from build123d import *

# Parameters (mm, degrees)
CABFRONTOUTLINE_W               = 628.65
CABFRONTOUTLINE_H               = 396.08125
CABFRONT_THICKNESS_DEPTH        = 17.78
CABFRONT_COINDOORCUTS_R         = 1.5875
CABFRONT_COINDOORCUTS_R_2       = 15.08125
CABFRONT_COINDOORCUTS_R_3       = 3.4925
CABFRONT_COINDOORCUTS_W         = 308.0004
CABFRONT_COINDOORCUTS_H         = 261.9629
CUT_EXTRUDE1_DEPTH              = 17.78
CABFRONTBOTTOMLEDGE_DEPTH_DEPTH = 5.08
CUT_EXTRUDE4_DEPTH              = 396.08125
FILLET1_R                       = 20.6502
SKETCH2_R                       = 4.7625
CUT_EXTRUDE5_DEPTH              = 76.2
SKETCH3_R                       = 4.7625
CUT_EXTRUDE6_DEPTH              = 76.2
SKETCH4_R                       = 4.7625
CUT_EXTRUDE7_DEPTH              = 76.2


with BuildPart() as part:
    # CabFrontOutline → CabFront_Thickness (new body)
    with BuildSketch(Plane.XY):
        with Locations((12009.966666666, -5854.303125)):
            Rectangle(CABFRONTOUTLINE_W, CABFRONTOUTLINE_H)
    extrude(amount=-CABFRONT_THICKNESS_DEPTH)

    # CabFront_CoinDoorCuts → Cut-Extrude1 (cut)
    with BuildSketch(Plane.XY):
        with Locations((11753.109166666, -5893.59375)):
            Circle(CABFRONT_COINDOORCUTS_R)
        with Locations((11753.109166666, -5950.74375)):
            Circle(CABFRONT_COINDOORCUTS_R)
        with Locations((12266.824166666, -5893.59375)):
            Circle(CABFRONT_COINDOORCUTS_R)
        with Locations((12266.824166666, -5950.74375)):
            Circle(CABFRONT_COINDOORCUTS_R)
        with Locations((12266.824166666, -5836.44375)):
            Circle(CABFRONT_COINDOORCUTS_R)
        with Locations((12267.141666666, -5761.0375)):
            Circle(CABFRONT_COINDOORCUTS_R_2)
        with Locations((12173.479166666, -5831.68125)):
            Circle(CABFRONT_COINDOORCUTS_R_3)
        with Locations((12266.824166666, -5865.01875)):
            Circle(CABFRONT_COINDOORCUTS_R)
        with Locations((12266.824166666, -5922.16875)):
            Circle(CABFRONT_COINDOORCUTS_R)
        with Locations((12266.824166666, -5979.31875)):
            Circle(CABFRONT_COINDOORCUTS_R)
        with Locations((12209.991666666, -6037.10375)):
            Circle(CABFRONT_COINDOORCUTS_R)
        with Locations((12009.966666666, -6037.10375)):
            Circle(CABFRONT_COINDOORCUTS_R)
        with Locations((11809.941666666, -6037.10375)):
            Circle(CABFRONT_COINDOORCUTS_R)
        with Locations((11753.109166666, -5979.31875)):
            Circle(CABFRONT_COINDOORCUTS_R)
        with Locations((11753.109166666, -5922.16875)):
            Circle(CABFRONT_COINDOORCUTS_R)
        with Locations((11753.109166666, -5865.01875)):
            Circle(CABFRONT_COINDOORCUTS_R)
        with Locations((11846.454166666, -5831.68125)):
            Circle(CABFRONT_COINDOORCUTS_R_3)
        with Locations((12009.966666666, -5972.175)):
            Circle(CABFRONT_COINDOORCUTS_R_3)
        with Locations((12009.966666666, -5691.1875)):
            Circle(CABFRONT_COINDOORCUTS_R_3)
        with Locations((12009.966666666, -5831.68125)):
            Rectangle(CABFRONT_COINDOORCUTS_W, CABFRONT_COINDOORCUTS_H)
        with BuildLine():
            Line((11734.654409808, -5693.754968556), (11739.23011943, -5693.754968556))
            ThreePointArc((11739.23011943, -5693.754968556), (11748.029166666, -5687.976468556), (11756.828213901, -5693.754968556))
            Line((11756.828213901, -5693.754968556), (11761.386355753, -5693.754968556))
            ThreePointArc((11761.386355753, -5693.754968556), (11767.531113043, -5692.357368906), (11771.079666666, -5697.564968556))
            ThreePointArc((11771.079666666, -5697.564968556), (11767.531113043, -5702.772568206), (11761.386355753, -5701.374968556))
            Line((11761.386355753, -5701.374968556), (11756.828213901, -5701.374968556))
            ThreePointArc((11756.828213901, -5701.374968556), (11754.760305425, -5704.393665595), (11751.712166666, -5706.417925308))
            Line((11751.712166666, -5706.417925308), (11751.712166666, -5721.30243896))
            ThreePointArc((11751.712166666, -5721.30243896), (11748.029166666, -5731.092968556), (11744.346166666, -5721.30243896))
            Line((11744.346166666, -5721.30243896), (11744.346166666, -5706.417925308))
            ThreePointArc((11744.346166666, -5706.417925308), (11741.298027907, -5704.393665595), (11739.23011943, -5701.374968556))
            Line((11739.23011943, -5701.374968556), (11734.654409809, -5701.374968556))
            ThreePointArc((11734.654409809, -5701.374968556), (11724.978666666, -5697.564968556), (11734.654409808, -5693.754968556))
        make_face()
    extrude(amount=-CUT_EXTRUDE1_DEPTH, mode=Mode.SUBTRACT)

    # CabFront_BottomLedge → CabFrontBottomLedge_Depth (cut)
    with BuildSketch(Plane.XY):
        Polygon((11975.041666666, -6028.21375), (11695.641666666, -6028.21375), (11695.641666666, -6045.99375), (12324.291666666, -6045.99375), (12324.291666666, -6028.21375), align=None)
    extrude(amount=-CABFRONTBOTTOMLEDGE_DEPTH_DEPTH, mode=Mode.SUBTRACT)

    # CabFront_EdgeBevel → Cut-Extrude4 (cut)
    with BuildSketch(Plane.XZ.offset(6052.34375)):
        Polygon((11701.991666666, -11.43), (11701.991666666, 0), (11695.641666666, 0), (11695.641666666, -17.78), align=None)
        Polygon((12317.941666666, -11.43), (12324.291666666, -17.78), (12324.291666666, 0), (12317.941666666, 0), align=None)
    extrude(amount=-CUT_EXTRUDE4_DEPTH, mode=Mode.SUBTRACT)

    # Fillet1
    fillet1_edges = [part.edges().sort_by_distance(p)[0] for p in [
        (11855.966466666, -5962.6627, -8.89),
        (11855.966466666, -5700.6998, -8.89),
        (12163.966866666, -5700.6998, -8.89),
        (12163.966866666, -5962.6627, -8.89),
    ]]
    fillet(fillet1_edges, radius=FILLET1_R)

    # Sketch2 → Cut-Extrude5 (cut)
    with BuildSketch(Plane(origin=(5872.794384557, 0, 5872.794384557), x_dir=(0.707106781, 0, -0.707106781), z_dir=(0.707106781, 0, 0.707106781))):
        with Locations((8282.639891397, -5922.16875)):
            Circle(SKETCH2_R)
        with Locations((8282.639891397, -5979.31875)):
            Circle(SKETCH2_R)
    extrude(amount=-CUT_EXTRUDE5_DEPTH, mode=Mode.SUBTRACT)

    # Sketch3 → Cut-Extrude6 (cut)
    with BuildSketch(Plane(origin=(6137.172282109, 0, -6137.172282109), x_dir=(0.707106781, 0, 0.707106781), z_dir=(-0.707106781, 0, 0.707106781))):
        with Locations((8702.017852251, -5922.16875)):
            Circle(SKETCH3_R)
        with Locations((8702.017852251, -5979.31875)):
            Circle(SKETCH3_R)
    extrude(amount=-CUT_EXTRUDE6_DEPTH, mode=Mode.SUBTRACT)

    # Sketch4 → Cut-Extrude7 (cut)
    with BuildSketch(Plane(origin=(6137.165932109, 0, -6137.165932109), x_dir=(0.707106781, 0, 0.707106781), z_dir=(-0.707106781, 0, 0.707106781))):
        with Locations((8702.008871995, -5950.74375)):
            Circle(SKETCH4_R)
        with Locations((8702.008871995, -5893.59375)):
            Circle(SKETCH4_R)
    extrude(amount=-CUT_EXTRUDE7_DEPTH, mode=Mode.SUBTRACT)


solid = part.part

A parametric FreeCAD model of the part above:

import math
import FreeCAD as App
import Part
import Sketcher

V = App.Vector
Q = App.Units.Quantity


def edges_at(feature, points):
    """Names of the edges that pass closest to the given points."""
    edges = feature.Shape.Edges
    near = lambda p: min(range(len(edges)), key=lambda i: edges[i].distToShape(Part.Vertex(*p))[0])
    return sorted({f"Edge{near(p) + 1}" for p in points})


def add_polygon(sketch, points):
    """Adds a closed chain of lines whose ends are joined by coincident constraints."""
    first, n = sketch.GeometryCount, len(points)
    for a, b in zip(points, points[1:] + points[:1]):
        sketch.addGeometry(Part.LineSegment(App.Vector(*a, 0), App.Vector(*b, 0)), False)
    for i in range(n):
        sketch.addConstraint(Sketcher.Constraint("Coincident", first + i, 2, first + (i + 1) % n, 1))

doc = App.newDocument("Part")
body = doc.addObject("PartDesign::Body", "Body")

# Sketch on XY plane
sketch1 = body.newObject("Sketcher::SketchObject", "Sketch")
sketch1.AttachmentSupport = (doc.getObject("XY_Plane"), [""])
sketch1.MapMode = "FlatFace"
add_polygon(sketch1, [(11696, -5656), (11696, -6052), (12324, -6052), (12324, -5656)])  # lines 0-3
sketch1.addConstraint(Sketcher.Constraint("Vertical", 0))
sketch1.addConstraint(Sketcher.Constraint("Horizontal", 1))
sketch1.addConstraint(Sketcher.Constraint("Vertical", 2))
sketch1.addConstraint(Sketcher.Constraint("Horizontal", 3))
sketch1.addConstraint(Sketcher.Constraint("DistanceX", 1, 1, 1, 2, Q("24.75 in")))
sketch1.addConstraint(Sketcher.Constraint("DistanceY", 0, 2, 0, 1, Q("15.59375 in")))
sketch1.addConstraint(Sketcher.Constraint("DistanceY", 0, 2, -1, 1, Q("238.28125 in")))
sketch1.addConstraint(Sketcher.Constraint("DistanceX", -1, 1, 0, 2, 11695.641667))
pad1 = body.newObject("PartDesign::Pad", "Pad")
pad1.Profile = sketch1
pad1.Length = Q("0.7 in")
pad1.Reversed = True

# Sketch on XY plane
sketch2 = body.newObject("Sketcher::SketchObject", "Sketch001")
sketch2.AttachmentSupport = (doc.getObject("XY_Plane"), [""])
sketch2.MapMode = "FlatFace"
sketch2.addGeometry(Part.Circle(V(11753.1, -5893.6, 0), V(0, 0, 1), 1.6), False)  # 0
sketch2.addGeometry(Part.Circle(V(11753.1, -5950.7, 0), V(0, 0, 1), 1.6), False)  # 1
sketch2.addGeometry(Part.Circle(V(12266.8, -5893.6, 0), V(0, 0, 1), 1.6), False)  # 2
sketch2.addGeometry(Part.Circle(V(12266.8, -5950.7, 0), V(0, 0, 1), 1.6), False)  # 3
sketch2.addGeometry(Part.Circle(V(12266.8, -5836.4, 0), V(0, 0, 1), 1.6), False)  # 4
sketch2.addGeometry(Part.Circle(V(12267.1, -5761, 0), V(0, 0, 1), 15.1), False)  # 5
sketch2.addGeometry(Part.Circle(V(12173.5, -5831.7, 0), V(0, 0, 1), 3.5), False)  # 6
sketch2.addGeometry(Part.Circle(V(12266.8, -5865, 0), V(0, 0, 1), 1.6), False)  # 7
sketch2.addGeometry(Part.Circle(V(12266.8, -5922.2, 0), V(0, 0, 1), 1.6), False)  # 8
sketch2.addGeometry(Part.Circle(V(12266.8, -5979.3, 0), V(0, 0, 1), 1.6), False)  # 9
sketch2.addGeometry(Part.Circle(V(12210, -6037.1, 0), V(0, 0, 1), 1.6), False)  # 10
sketch2.addGeometry(Part.Circle(V(12010, -6037.1, 0), V(0, 0, 1), 1.6), False)  # 11
sketch2.addGeometry(Part.Circle(V(11809.9, -6037.1, 0), V(0, 0, 1), 1.6), False)  # 12
sketch2.addGeometry(Part.Circle(V(11753.1, -5979.3, 0), V(0, 0, 1), 1.6), False)  # 13
sketch2.addGeometry(Part.Circle(V(11753.1, -5922.2, 0), V(0, 0, 1), 1.6), False)  # 14
sketch2.addGeometry(Part.Circle(V(11753.1, -5865, 0), V(0, 0, 1), 1.6), False)  # 15
sketch2.addGeometry(Part.Circle(V(11846.5, -5831.7, 0), V(0, 0, 1), 3.5), False)  # 16
sketch2.addGeometry(Part.Circle(V(12010, -5972.2, 0), V(0, 0, 1), 3.5), False)  # 17
sketch2.addGeometry(Part.Circle(V(12010, -5691.2, 0), V(0, 0, 1), 3.5), False)  # 18
add_polygon(sketch2, [(11856, -5700.7), (11856, -5962.7), (12164, -5962.7), (12164, -5700.7)])  # lines 19-22
sketch2.addGeometry(Part.LineSegment(V(11739.2, -5693.8, 0), V(11734.7, -5693.8, 0)), False)  # 23
sketch2.addGeometry(Part.ArcOfCircle(Part.Circle(V(11730.6, -5697.6, 0), V(0, 0, 1), 5.6), math.radians(43), math.radians(317)), False)  # 24
sketch2.addGeometry(Part.LineSegment(V(11734.7, -5701.4, 0), V(11739.2, -5701.4, 0)), False)  # 25
sketch2.addGeometry(Part.ArcOfCircle(Part.Circle(V(11748, -5697.6, 0), V(0, 0, 1), 9.6), math.radians(-157), math.radians(-113)), False)  # 26
sketch2.addGeometry(Part.LineSegment(V(11744.3, -5706.4, 0), V(11744.3, -5721.3, 0)), False)  # 27
sketch2.addGeometry(Part.ArcOfCircle(Part.Circle(V(11748, -5725.5, 0), V(0, 0, 1), 5.6), math.radians(131), math.radians(409)), False)  # 28
sketch2.addGeometry(Part.LineSegment(V(11751.7, -5721.3, 0), V(11751.7, -5706.4, 0)), False)  # 29
sketch2.addGeometry(Part.ArcOfCircle(Part.Circle(V(11748, -5697.6, 0), V(0, 0, 1), 9.6), math.radians(-67), math.radians(-23)), False)  # 30
sketch2.addGeometry(Part.LineSegment(V(11756.8, -5701.4, 0), V(11761.4, -5701.4, 0)), False)  # 31
sketch2.addGeometry(Part.ArcOfCircle(Part.Circle(V(11765.5, -5697.6, 0), V(0, 0, 1), 5.6), math.radians(-137), math.radians(0)), False)  # 32
sketch2.addGeometry(Part.ArcOfCircle(Part.Circle(V(11765.5, -5697.6, 0), V(0, 0, 1), 5.6), math.radians(0), math.radians(137)), False)  # 33
sketch2.addGeometry(Part.LineSegment(V(11761.4, -5693.8, 0), V(11756.8, -5693.8, 0)), False)  # 34
sketch2.addGeometry(Part.ArcOfCircle(Part.Circle(V(11748, -5697.6, 0), V(0, 0, 1), 9.6), math.radians(23), math.radians(157)), False)  # 35
sketch2.addConstraint(Sketcher.Constraint("Coincident", 23, 2, 24, 1))
sketch2.addConstraint(Sketcher.Constraint("Coincident", 24, 2, 25, 1))
sketch2.addConstraint(Sketcher.Constraint("Coincident", 25, 2, 26, 1))
sketch2.addConstraint(Sketcher.Constraint("Coincident", 26, 2, 27, 1))
sketch2.addConstraint(Sketcher.Constraint("Coincident", 27, 2, 28, 1))
sketch2.addConstraint(Sketcher.Constraint("Coincident", 28, 2, 29, 1))
sketch2.addConstraint(Sketcher.Constraint("Coincident", 29, 2, 30, 1))
sketch2.addConstraint(Sketcher.Constraint("Coincident", 30, 2, 31, 1))
sketch2.addConstraint(Sketcher.Constraint("Coincident", 31, 2, 32, 1))
sketch2.addConstraint(Sketcher.Constraint("Tangent", 32, 2, 33, 1))
sketch2.addConstraint(Sketcher.Constraint("Coincident", 33, 2, 34, 1))
sketch2.addConstraint(Sketcher.Constraint("Coincident", 34, 2, 35, 1))
sketch2.addConstraint(Sketcher.Constraint("Coincident", 35, 2, 23, 1))
sketch2.addConstraint(Sketcher.Constraint("Vertical", 19))
sketch2.addConstraint(Sketcher.Constraint("Horizontal", 20))
sketch2.addConstraint(Sketcher.Constraint("Vertical", 21))
sketch2.addConstraint(Sketcher.Constraint("Horizontal", 22))
sketch2.addConstraint(Sketcher.Constraint("Horizontal", 23))
sketch2.addConstraint(Sketcher.Constraint("Horizontal", 25))
sketch2.addConstraint(Sketcher.Constraint("Vertical", 27))
sketch2.addConstraint(Sketcher.Constraint("Vertical", 29))
sketch2.addConstraint(Sketcher.Constraint("Horizontal", 31))
sketch2.addConstraint(Sketcher.Constraint("Horizontal", 34))
sketch2.addConstraint(Sketcher.Constraint("Coincident", 30, 3, 26, 3))
sketch2.addConstraint(Sketcher.Constraint("Coincident", 35, 3, 26, 3))
sketch2.addConstraint(Sketcher.Constraint("Equal", 0, 1))
sketch2.addConstraint(Sketcher.Constraint("Equal", 1, 2))
sketch2.addConstraint(Sketcher.Constraint("Equal", 2, 3))
sketch2.addConstraint(Sketcher.Constraint("Equal", 3, 4))
sketch2.addConstraint(Sketcher.Constraint("Equal", 4, 7))
sketch2.addConstraint(Sketcher.Constraint("Equal", 7, 8))
sketch2.addConstraint(Sketcher.Constraint("Equal", 8, 9))
sketch2.addConstraint(Sketcher.Constraint("Equal", 9, 10))
sketch2.addConstraint(Sketcher.Constraint("Equal", 10, 11))
sketch2.addConstraint(Sketcher.Constraint("Equal", 11, 12))
sketch2.addConstraint(Sketcher.Constraint("Equal", 12, 13))
sketch2.addConstraint(Sketcher.Constraint("Equal", 13, 14))
sketch2.addConstraint(Sketcher.Constraint("Equal", 14, 15))
sketch2.addConstraint(Sketcher.Constraint("Equal", 6, 16))
sketch2.addConstraint(Sketcher.Constraint("Equal", 16, 17))
sketch2.addConstraint(Sketcher.Constraint("Equal", 17, 18))
sketch2.addConstraint(Sketcher.Constraint("Equal", 24, 28))
sketch2.addConstraint(Sketcher.Constraint("Equal", 26, 30))
sketch2.addConstraint(Sketcher.Constraint("Equal", 32, 33))
sketch2.addConstraint(Sketcher.Constraint("Equal", 30, 35))
sketch2.addConstraint(Sketcher.Constraint("Horizontal", 0, 3, 2, 3))
sketch2.addConstraint(Sketcher.Constraint("Horizontal", 1, 3, 3, 3))
sketch2.addConstraint(Sketcher.Constraint("Horizontal", 10, 3, 11, 3))
sketch2.addConstraint(Sketcher.Constraint("Horizontal", 11, 3, 12, 3))
sketch2.addConstraint(Sketcher.Constraint("Horizontal", 9, 3, 13, 3))
sketch2.addConstraint(Sketcher.Constraint("Horizontal", 8, 3, 14, 3))
sketch2.addConstraint(Sketcher.Constraint("Horizontal", 7, 3, 15, 3))
sketch2.addConstraint(Sketcher.Constraint("Horizontal", 6, 3, 16, 3))
sketch2.addConstraint(Sketcher.Constraint("Horizontal", 24, 3, 26, 3))
sketch2.addConstraint(Sketcher.Constraint("Horizontal", 30, 3, 32, 3))
sketch2.addConstraint(Sketcher.Constraint("Horizontal", 27, 2, 28, 2))
sketch2.addConstraint(Sketcher.Constraint("Horizontal", 26, 2, 29, 2))
sketch2.addConstraint(Sketcher.Constraint("Horizontal", 25, 2, 30, 2))
sketch2.addConstraint(Sketcher.Constraint("Horizontal", 35, 3, 32, 2))
sketch2.addConstraint(Sketcher.Constraint("Horizontal", 23, 2, 33, 2))
sketch2.addConstraint(Sketcher.Constraint("Vertical", 0, 3, 1, 3))
sketch2.addConstraint(Sketcher.Constraint("Vertical", 2, 3, 3, 3))
sketch2.addConstraint(Sketcher.Constraint("Vertical", 3, 3, 4, 3))
sketch2.addConstraint(Sketcher.Constraint("Vertical", 4, 3, 7, 3))
sketch2.addConstraint(Sketcher.Constraint("Vertical", 7, 3, 8, 3))
sketch2.addConstraint(Sketcher.Constraint("Vertical", 8, 3, 9, 3))
sketch2.addConstraint(Sketcher.Constraint("Vertical", 1, 3, 13, 3))
sketch2.addConstraint(Sketcher.Constraint("Vertical", 13, 3, 14, 3))
sketch2.addConstraint(Sketcher.Constraint("Vertical", 14, 3, 15, 3))
sketch2.addConstraint(Sketcher.Constraint("Vertical", 11, 3, 17, 3))
sketch2.addConstraint(Sketcher.Constraint("Vertical", 17, 3, 18, 3))
sketch2.addConstraint(Sketcher.Constraint("Vertical", 23, 2, 24, 2))
sketch2.addConstraint(Sketcher.Constraint("Radius", 24, Q("0.22 in")))
sketch2.addConstraint(Sketcher.Constraint("Diameter", 0, Q("0.125 in")))
sketch2.addConstraint(Sketcher.Constraint("Diameter", 5, Q("1.1875 in")))
sketch2.addConstraint(Sketcher.Constraint("Diameter", 6, Q("0.275 in")))
sketch2.addConstraint(Sketcher.Constraint("Radius", 26, Q("0.3775 in")))
sketch2.addConstraint(Sketcher.Constraint("DistanceY", 3, 3, 4, 3, Q("4.5 in")))
sketch2.addConstraint(Sketcher.Constraint("DistanceY", 9, 3, 7, 3, Q("4.5 in")))
sketch2.addConstraint(Sketcher.Constraint("DistanceY", 10, 3, 3, 3, Q("3.4 in")))
sketch2.addConstraint(Sketcher.Constraint("DistanceX", 26, 3, 15, 3, Q("0.2 in")))
sketch2.addConstraint(Sketcher.Constraint("DistanceY", 28, 3, 26, 3, Q("1.1 in")))
sketch2.addConstraint(Sketcher.Constraint("DistanceY", 24, 2, 23, 2, Q("0.3 in")))
sketch2.addConstraint(Sketcher.Constraint("DistanceX", 20, 1, 20, 2, Q("12.126 in")))
sketch2.addConstraint(Sketcher.Constraint("DistanceY", 1, 3, 0, 3, Q("2.25 in")))
sketch2.addConstraint(Sketcher.Constraint("DistanceX", 0, 3, 6, 3, Q("16.55 in")))
sketch2.addConstraint(Sketcher.Constraint("DistanceY", 8, 3, 7, 3, Q("2.25 in")))
sketch2.addConstraint(Sketcher.Constraint("DistanceX", 12, 3, 10, 3, Q("15.75 in")))
sketch2.addConstraint(Sketcher.Constraint("DistanceY", 5, 3, 18, 3, Q("2.75 in")))
sketch2.addConstraint(Sketcher.Constraint("DistanceX", 27, 2, 28, 2, Q("0.29 in")))
sketch2.addConstraint(Sketcher.Constraint("DistanceY", 19, 2, 19, 1, Q("10.3135 in")))
sketch2.addConstraint(Sketcher.Constraint("DistanceY", 0, 3, -1, 1, Q("232.03125 in")))
sketch2.addConstraint(Sketcher.Constraint("DistanceY", 5, 3, -1, 1, Q("226.8125 in")))
sketch2.addConstraint(Sketcher.Constraint("DistanceY", 6, 3, -1, 1, Q("229.59375 in")))
sketch2.addConstraint(Sketcher.Constraint("DistanceY", 7, 3, -1, 1, Q("230.90625 in")))
sketch2.addConstraint(Sketcher.Constraint("DistanceY", 17, 3, -1, 1, Q("235.125 in")))
sketch2.addConstraint(Sketcher.Constraint("DistanceY", 21, 2, -1, 1, Q("224.437 in")))
sketch2.addConstraint(Sketcher.Constraint("DistanceX", 0, 3, 2, 3, Q("20.225 in")))
sketch2.addConstraint(Sketcher.Constraint("DistanceX", 6, 3, 5, 3, Q("3.6875 in")))
sketch2.addConstraint(Sketcher.Constraint("DistanceX", 11, 3, 10, 3, Q("7.875 in")))
sketch2.addConstraint(Sketcher.Constraint("DistanceX", 11, 3, 6, 3, Q("6.4375 in")))
sketch2.addConstraint(Sketcher.Constraint("DistanceX", 15, 3, 16, 3, Q("3.675 in")))
sketch2.addConstraint(Sketcher.Constraint("DistanceX", 24, 3, 16, 3, Q("4.5625 in")))
sketch2.addConstraint(Sketcher.Constraint("DistanceX", 12, 3, 19, 2, Q("1.812 in")))
sketch2.addConstraint(Sketcher.Constraint("Radius", 32, 5.595424))
sketch2.addConstraint(Sketcher.Constraint("DistanceX", 29, 2, 32, 2, Q("0.7625 in")))
sketch2.addConstraint(Sketcher.Constraint("DistanceY", 24, 3, -1, 1, 5697.564969))
sketch2.addConstraint(Sketcher.Constraint("DistanceX", -1, 1, 23, 2, 11734.65441))
pocket1 = body.newObject("PartDesign::Pocket", "Pocket")
pocket1.Profile = sketch2
pocket1.Length = Q("0.7 in")

# Sketch on XY plane
sketch3 = body.newObject("Sketcher::SketchObject", "Sketch002")
sketch3.AttachmentSupport = (doc.getObject("XY_Plane"), [""])
sketch3.MapMode = "FlatFace"
add_polygon(sketch3, [(11696, -6028), (11696, -6046), (12324, -6046), (12324, -6028)])  # lines 0-3
sketch3.addConstraint(Sketcher.Constraint("Vertical", 0))
sketch3.addConstraint(Sketcher.Constraint("Horizontal", 1))
sketch3.addConstraint(Sketcher.Constraint("Vertical", 2))
sketch3.addConstraint(Sketcher.Constraint("Horizontal", 3))
sketch3.addConstraint(Sketcher.Constraint("DistanceY", 0, 2, 0, 1, Q("0.7 in")))
sketch3.addConstraint(Sketcher.Constraint("DistanceX", 1, 1, 1, 2, Q("24.75 in")))
sketch3.addConstraint(Sketcher.Constraint("DistanceY", 0, 2, -1, 1, Q("238.03125 in")))
sketch3.addConstraint(Sketcher.Constraint("DistanceX", -1, 1, 0, 2, 11695.641667))
pocket2 = body.newObject("PartDesign::Pocket", "Pocket001")
pocket2.Profile = sketch3
pocket2.Length = Q("0.2 in")

# Sketch on XZ plane
sketch4 = body.newObject("Sketcher::SketchObject", "Sketch003")
sketch4.AttachmentSupport = (doc.getObject("XZ_Plane"), [""])
sketch4.MapMode = "FlatFace"
sketch4.AttachmentOffset = App.Placement(V(0, 0, 238.28125 * 25.4), App.Rotation())
add_polygon(sketch4, [(11702, -11), (11702, 0), (11696, 0), (11696, -18)])  # lines 0-3
add_polygon(sketch4, [(12318, -11), (12324, -18), (12324, 0), (12318, 0)])  # lines 4-7
sketch4.addConstraint(Sketcher.Constraint("Vertical", 0))
sketch4.addConstraint(Sketcher.Constraint("Horizontal", 1))
sketch4.addConstraint(Sketcher.Constraint("Vertical", 2))
sketch4.addConstraint(Sketcher.Constraint("Vertical", 5))
sketch4.addConstraint(Sketcher.Constraint("Horizontal", 6))
sketch4.addConstraint(Sketcher.Constraint("Vertical", 7))
sketch4.addConstraint(Sketcher.Constraint("PointOnObject", 0, 2, -1))
sketch4.addConstraint(Sketcher.Constraint("PointOnObject", 5, 2, -1))
sketch4.addConstraint(Sketcher.Constraint("Perpendicular", 3, 4))
sketch4.addConstraint(Sketcher.Constraint("Horizontal", 2, 2, 4, 2))
sketch4.addConstraint(Sketcher.Constraint("Horizontal", 3, 2, 7, 2))
sketch4.addConstraint(Sketcher.Constraint("Equal", 1, 6))
sketch4.addConstraint(Sketcher.Constraint("DistanceY", 2, 2, 2, 1, Q("0.7 in")))
sketch4.addConstraint(Sketcher.Constraint("DistanceX", 1, 2, 1, 1, Q("0.25 in")))
sketch4.addConstraint(Sketcher.Constraint("DistanceX", 3, 2, 4, 2, Q("24.5 in")))
sketch4.addConstraint(Sketcher.Constraint("DistanceX", -1, 1, 0, 2, 11701.991667))
pocket3 = body.newObject("PartDesign::Pocket", "Pocket002")
pocket3.Profile = sketch4
pocket3.Length = Q("15.59375 in")
doc.recompute()

fillet = body.newObject("PartDesign::Fillet", "Fillet")
fillet.Base = (pocket3, edges_at(pocket3, [
    (11855.966, -5962.663, -8.89),
    (11855.966, -5700.7, -8.89),
    (12163.967, -5700.7, -8.89),
    (12163.967, -5962.663, -8.89),
]))
fillet.Radius = Q("0.813 in")

# Sketch on an angled plane
sketch5 = body.newObject("Sketcher::SketchObject", "Sketch004")
sketch5.Placement = App.Placement(V(5872.794385, 0, 5872.794385), App.Rotation(V(0.707106781, 0, -0.707106781), V(0, 0.999999999, 0), V(0.707106781, 0, 0.707106781), "ZXY"))
sketch5.addGeometry(Part.Circle(V(8282.6, -5922.2, 0), V(0, 0, 1), 4.8), False)
sketch5.addGeometry(Part.Circle(V(8282.6, -5979.3, 0), V(0, 0, 1), 4.8), False)
sketch5.addConstraint(Sketcher.Constraint("Equal", 0, 1))
sketch5.addConstraint(Sketcher.Constraint("Vertical", 0, 3, 1, 3))
sketch5.addConstraint(Sketcher.Constraint("Diameter", 0, Q("0.375 in")))
sketch5.addConstraint(Sketcher.Constraint("DistanceY", 1, 3, 0, 3, Q("2.25 in")))
sketch5.addConstraint(Sketcher.Constraint("DistanceX", -1, 1, 0, 3, 8282.639887))
sketch5.addConstraint(Sketcher.Constraint("DistanceY", 0, 3, -1, 1, 5922.168744))
pocket4 = body.newObject("PartDesign::Pocket", "Pocket003")
pocket4.Profile = sketch5
pocket4.Length = Q("3 in")

# Sketch on an angled plane
sketch6 = body.newObject("Sketcher::SketchObject", "Sketch005")
sketch6.Placement = App.Placement(V(6137.172282, 0, -6137.172282), App.Rotation(V(0.707106781, 0, 0.707106781), V(0, 0.999999999, 0), V(-0.707106781, 0, 0.707106781), "ZXY"))
sketch6.addGeometry(Part.Circle(V(8702, -5922.2, 0), V(0, 0, 1), 4.8), False)
sketch6.addGeometry(Part.Circle(V(8702, -5979.3, 0), V(0, 0, 1), 4.8), False)
sketch6.addConstraint(Sketcher.Constraint("Equal", 0, 1))
sketch6.addConstraint(Sketcher.Constraint("Vertical", 0, 3, 1, 3))
sketch6.addConstraint(Sketcher.Constraint("Diameter", 0, Q("0.375 in")))
sketch6.addConstraint(Sketcher.Constraint("DistanceY", 1, 3, 0, 3, Q("2.25 in")))
sketch6.addConstraint(Sketcher.Constraint("DistanceX", -1, 1, 0, 3, 8702.017848))
sketch6.addConstraint(Sketcher.Constraint("DistanceY", 0, 3, -1, 1, 5922.168744))
pocket5 = body.newObject("PartDesign::Pocket", "Pocket004")
pocket5.Profile = sketch6
pocket5.Length = Q("3 in")

# Sketch on an angled plane
sketch7 = body.newObject("Sketcher::SketchObject", "Sketch006")
sketch7.Placement = App.Placement(V(6137.165932, 0, -6137.165932), App.Rotation(V(0.707106781, 0, 0.707106781), V(0, 0.999999999, 0), V(-0.707106781, 0, 0.707106781), "ZXY"))
sketch7.addGeometry(Part.Circle(V(8702, -5950.7, 0), V(0, 0, 1), 4.8), False)
sketch7.addGeometry(Part.Circle(V(8702, -5893.6, 0), V(0, 0, 1), 4.8), False)
sketch7.addConstraint(Sketcher.Constraint("Equal", 0, 1))
sketch7.addConstraint(Sketcher.Constraint("Vertical", 0, 3, 1, 3))
sketch7.addConstraint(Sketcher.Constraint("Diameter", 0, Q("0.375 in")))
sketch7.addConstraint(Sketcher.Constraint("DistanceY", 0, 3, 1, 3, Q("2.25 in")))
sketch7.addConstraint(Sketcher.Constraint("DistanceX", -1, 1, 0, 3, 8702.008867))
sketch7.addConstraint(Sketcher.Constraint("DistanceY", 0, 3, -1, 1, 5950.743744))
pocket6 = body.newObject("PartDesign::Pocket", "Pocket005")
pocket6.Profile = sketch7
pocket6.Length = Q("3 in")

doc.recompute()
